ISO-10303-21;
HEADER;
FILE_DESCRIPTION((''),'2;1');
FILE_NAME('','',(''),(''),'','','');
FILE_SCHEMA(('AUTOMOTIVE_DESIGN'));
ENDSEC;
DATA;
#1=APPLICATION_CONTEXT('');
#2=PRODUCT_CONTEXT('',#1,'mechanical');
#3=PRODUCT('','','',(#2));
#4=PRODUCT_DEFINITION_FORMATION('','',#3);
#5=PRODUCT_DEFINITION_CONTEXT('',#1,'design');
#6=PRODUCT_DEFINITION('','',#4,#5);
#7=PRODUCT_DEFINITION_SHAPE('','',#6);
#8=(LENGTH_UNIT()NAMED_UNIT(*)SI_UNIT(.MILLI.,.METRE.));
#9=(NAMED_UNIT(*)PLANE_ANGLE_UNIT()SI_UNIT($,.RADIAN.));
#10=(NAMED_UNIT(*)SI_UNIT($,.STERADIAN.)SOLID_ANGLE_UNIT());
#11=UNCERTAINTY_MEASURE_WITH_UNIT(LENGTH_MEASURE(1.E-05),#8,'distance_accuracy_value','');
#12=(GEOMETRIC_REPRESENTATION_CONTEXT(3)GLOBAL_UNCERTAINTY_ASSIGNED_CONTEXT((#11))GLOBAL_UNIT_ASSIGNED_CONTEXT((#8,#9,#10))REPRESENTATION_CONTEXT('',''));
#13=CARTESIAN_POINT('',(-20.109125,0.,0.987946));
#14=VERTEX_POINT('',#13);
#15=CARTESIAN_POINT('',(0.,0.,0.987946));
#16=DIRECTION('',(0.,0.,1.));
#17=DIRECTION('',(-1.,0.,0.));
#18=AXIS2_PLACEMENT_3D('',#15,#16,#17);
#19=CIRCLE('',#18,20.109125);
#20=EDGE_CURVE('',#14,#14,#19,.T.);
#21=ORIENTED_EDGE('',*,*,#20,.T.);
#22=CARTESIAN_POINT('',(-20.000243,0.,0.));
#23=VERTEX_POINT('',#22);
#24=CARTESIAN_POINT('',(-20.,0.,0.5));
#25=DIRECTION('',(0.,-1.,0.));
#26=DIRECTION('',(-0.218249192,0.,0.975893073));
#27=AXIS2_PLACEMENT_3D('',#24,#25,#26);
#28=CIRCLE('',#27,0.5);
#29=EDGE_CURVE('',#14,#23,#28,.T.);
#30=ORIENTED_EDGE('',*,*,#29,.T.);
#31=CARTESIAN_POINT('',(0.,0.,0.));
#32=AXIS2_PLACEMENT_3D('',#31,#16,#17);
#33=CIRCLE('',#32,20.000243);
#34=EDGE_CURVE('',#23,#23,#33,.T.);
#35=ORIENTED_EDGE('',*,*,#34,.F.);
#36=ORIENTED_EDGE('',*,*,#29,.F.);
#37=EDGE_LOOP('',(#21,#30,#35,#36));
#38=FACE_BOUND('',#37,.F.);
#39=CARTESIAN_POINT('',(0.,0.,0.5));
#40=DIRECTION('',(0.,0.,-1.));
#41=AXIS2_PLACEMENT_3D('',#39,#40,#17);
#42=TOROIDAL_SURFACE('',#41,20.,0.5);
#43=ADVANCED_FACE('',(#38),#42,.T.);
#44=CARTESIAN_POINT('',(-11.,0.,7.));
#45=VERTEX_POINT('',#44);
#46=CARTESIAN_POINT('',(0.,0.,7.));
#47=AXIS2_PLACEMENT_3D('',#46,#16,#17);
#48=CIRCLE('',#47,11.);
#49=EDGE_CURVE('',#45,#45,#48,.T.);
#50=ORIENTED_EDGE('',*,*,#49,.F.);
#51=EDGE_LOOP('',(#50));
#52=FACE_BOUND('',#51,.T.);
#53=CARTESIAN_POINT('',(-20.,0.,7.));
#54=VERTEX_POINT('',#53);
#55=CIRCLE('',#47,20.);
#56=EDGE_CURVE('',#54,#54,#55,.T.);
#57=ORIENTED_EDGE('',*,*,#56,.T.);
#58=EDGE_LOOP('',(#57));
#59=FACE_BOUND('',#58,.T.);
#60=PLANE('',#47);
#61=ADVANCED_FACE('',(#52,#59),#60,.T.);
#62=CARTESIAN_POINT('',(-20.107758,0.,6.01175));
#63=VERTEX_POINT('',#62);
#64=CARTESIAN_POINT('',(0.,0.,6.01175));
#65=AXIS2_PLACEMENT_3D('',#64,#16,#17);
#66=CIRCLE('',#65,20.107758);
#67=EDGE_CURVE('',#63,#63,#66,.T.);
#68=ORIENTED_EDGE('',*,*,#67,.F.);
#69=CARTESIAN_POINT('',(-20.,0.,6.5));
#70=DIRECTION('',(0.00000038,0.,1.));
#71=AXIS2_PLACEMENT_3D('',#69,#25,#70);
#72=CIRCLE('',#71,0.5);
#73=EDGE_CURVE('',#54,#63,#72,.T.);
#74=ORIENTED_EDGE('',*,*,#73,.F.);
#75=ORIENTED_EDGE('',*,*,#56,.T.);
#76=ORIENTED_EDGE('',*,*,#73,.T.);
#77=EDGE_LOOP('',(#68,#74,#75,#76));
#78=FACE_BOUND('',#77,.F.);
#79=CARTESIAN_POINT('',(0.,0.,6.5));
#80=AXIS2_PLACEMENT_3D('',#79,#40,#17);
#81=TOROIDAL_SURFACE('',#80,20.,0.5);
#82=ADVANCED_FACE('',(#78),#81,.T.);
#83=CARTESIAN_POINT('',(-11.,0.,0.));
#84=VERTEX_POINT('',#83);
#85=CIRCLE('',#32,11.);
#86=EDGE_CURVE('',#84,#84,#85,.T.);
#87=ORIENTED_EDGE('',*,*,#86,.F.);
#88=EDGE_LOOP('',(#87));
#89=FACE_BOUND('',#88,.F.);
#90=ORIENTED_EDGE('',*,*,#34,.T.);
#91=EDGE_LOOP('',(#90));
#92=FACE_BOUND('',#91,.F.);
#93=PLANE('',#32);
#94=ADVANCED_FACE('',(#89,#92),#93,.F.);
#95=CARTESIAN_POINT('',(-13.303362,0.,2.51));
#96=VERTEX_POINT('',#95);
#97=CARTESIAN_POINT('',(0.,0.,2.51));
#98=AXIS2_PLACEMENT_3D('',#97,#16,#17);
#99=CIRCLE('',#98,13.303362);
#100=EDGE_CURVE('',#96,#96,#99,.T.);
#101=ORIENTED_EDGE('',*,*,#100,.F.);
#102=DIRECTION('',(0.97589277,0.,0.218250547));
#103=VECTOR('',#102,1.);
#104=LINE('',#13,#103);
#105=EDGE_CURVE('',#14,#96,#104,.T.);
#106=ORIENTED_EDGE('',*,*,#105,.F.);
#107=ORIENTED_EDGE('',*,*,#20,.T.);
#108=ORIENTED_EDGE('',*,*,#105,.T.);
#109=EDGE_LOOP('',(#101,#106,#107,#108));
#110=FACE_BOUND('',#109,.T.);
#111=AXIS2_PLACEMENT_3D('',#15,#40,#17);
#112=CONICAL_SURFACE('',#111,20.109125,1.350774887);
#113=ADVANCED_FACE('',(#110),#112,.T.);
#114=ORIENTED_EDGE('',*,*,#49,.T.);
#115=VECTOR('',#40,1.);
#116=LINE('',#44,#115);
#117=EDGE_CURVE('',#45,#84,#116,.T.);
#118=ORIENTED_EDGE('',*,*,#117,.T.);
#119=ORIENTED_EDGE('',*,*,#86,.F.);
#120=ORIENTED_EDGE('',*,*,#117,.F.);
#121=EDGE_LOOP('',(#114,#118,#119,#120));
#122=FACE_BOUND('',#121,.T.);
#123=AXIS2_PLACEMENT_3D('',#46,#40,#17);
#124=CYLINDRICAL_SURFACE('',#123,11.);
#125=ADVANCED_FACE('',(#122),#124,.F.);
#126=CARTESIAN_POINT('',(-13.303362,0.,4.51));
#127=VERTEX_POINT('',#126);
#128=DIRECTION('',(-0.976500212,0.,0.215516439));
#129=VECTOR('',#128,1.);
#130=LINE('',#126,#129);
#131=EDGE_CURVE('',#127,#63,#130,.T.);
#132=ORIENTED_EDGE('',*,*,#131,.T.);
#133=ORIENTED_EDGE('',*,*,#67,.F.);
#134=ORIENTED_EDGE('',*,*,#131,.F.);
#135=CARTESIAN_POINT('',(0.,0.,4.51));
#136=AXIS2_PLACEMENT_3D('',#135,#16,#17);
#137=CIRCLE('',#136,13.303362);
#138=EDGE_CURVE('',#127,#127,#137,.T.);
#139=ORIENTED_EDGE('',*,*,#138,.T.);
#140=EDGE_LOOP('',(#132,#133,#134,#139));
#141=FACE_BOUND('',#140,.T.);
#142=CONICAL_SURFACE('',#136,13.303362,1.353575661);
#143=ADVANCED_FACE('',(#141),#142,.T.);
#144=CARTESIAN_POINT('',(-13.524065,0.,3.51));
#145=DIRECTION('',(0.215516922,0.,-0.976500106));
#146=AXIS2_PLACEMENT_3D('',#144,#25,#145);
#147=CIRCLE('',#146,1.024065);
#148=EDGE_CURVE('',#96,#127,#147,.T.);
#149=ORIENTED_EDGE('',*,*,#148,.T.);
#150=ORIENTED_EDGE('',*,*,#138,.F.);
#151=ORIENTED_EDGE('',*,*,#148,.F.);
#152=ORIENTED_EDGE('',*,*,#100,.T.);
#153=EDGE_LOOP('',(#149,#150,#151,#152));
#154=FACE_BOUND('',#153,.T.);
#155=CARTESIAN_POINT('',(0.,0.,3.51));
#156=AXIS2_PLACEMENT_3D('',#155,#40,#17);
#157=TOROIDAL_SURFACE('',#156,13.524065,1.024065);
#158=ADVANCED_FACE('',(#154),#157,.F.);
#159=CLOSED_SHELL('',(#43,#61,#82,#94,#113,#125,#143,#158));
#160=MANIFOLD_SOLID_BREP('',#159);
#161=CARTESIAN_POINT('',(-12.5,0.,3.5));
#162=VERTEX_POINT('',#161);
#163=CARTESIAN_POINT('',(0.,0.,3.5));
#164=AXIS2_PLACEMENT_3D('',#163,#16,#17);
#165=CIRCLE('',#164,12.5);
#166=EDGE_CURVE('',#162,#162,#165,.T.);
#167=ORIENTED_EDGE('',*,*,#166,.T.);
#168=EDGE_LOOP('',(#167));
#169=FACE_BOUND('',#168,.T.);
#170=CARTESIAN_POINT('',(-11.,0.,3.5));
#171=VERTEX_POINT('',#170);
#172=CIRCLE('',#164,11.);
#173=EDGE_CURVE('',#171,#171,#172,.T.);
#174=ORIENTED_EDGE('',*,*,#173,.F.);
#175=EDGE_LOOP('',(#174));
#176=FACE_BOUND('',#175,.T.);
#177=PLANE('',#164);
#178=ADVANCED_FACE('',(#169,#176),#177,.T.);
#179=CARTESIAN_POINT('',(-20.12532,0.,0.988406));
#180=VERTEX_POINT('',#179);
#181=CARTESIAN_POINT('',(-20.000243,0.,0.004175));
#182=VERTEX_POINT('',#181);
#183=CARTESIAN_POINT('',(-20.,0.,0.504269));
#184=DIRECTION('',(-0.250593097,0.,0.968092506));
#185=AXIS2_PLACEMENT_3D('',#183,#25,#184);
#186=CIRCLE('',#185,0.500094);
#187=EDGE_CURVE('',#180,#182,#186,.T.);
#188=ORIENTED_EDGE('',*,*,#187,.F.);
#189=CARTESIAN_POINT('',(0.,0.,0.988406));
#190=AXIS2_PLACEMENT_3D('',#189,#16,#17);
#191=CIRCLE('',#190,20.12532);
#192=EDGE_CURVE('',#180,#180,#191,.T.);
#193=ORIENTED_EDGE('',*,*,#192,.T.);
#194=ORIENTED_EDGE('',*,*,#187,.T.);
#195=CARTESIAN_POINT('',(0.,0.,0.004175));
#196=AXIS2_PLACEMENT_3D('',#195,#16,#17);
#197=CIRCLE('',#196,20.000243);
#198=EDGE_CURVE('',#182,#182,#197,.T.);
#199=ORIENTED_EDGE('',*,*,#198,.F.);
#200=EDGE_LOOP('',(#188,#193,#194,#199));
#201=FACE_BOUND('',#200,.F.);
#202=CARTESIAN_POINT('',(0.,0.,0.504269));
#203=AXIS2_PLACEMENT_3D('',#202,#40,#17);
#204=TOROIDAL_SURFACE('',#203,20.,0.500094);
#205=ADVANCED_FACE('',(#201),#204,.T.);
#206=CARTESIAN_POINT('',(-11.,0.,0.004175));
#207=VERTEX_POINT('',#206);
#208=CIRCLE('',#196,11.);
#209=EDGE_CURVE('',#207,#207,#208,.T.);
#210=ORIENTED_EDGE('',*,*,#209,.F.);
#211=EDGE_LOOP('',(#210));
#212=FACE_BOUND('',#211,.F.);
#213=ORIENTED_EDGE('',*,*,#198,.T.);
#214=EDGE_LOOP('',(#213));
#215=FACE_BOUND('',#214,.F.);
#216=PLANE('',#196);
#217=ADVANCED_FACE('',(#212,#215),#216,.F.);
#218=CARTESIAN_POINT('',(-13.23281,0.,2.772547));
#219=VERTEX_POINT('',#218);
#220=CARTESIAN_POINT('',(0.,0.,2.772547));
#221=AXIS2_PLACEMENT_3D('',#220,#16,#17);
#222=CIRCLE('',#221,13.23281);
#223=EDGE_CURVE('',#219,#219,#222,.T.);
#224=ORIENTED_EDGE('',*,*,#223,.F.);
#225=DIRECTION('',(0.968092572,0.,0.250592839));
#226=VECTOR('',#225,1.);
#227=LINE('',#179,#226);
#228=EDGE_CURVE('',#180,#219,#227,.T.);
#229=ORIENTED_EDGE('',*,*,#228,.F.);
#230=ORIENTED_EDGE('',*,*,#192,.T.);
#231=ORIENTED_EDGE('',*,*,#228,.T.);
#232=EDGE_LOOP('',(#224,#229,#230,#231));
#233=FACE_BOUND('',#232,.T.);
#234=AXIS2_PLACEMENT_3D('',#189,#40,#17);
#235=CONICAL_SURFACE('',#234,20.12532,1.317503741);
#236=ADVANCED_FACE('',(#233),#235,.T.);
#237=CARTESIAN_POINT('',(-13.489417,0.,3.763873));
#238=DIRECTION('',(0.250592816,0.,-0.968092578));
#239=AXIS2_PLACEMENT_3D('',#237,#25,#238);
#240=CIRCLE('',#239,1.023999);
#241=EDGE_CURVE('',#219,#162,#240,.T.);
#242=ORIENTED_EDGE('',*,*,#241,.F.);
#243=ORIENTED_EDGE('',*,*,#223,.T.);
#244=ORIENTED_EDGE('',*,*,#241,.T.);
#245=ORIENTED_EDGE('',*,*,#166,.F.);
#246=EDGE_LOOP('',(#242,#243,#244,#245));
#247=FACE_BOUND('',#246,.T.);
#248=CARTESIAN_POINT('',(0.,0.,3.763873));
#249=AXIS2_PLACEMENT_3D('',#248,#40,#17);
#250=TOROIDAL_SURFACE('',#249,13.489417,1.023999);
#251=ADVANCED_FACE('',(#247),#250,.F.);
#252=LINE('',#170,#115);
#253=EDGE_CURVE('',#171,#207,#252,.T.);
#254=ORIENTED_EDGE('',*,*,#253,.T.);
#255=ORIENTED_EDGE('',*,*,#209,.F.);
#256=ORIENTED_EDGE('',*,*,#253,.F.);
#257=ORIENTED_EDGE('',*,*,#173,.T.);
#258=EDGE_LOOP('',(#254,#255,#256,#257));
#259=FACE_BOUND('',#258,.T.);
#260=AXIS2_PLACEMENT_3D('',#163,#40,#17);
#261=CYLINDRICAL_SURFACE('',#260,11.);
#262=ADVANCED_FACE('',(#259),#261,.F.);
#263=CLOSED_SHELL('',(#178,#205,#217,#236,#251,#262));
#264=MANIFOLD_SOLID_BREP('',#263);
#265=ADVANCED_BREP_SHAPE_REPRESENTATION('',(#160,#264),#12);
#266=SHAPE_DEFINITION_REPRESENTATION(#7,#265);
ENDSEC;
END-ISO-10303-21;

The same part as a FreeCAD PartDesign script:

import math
import FreeCAD as App
import Part
import Sketcher

V = App.Vector

doc = App.newDocument("Part")
body = doc.addObject("PartDesign::Body", "Body")

sketch1 = body.newObject("Sketcher::SketchObject", "Sketch")
sketch1.AttachmentSupport = (doc.getObject("XZ_Plane"), [""])
sketch1.MapMode = "FlatFace"
sketch1.addGeometry([
    Part.LineSegment(V(-11, 0, 0), V(-11, 7, 0)),
    Part.LineSegment(V(-11, 7, 0), V(-20, 7, 0)),
    Part.ArcOfCircle(Part.Circle(V(-20, 6.5, 0), V(0, 0, 1), 0.5), math.radians(89.999978), math.radians(257.554218)),
    Part.LineSegment(V(-20.107758, 6.01175, 0), V(-13.303362, 4.51, 0)),
    Part.ArcOfCircle(Part.Circle(V(-13.524065, 3.51, 0), V(0, 0, 1), 1.024065), math.radians(-77.554144), math.radians(77.554144)),
    Part.LineSegment(V(-13.303362, 2.51, 0), V(-20.109125, 0.987946, 0)),
    Part.ArcOfCircle(Part.Circle(V(-20, 0.5, 0), V(0, 0, 1), 0.5), math.radians(102.60622), math.radians(269.972207)),
    Part.LineSegment(V(-20.000243, 0, 0), V(-11, 0, 0)),
], False)
sketch1.addConstraint([
    Sketcher.Constraint("Coincident", 0, 2, 1, 1),
    Sketcher.Constraint("Coincident", 1, 2, 2, 1),
    Sketcher.Constraint("Coincident", 2, 2, 3, 1),
    Sketcher.Constraint("Coincident", 3, 2, 4, 2),
    Sketcher.Constraint("Coincident", 4, 1, 5, 1),
    Sketcher.Constraint("Coincident", 5, 2, 6, 1),
    Sketcher.Constraint("Coincident", 6, 2, 7, 1),
    Sketcher.Constraint("Coincident", 7, 2, 0, 1),
    Sketcher.Constraint("Vertical", 0),
    Sketcher.Constraint("Horizontal", 1),
    Sketcher.Constraint("Horizontal", 7),
    Sketcher.Constraint("PointOnObject", 6, 2, -1),
    Sketcher.Constraint("Radius", 2, 0.5),
    Sketcher.Constraint("Radius", 6, 0.5),
    Sketcher.Constraint("DistanceX", 1, 2, 1, 1, 9.0),
    Sketcher.Constraint("DistanceY", 0, 1, 0, 2, 7.0),
    Sketcher.Constraint("DistanceX", 2, 3, -1, 1, 20.0),
    Sketcher.Constraint("DistanceX", 6, 3, -1, 1, 20.0),
    Sketcher.Constraint("DistanceX", 0, 2, -1, 1, 11.0),
    Sketcher.Constraint("DistanceY", 4, 3, 3, 2, 1.0),
    Sketcher.Constraint("DistanceY", 4, 1, 4, 3, 1.0),
    Sketcher.Constraint("DistanceY", -1, 1, 4, 3, 3.51),
    Sketcher.Constraint("Radius", 4, 1.024065),
    Sketcher.Constraint("DistanceX", 7, 1, 7, 2, 9.000243),
    Sketcher.Constraint("DistanceX", 2, 2, -1, 1, 20.107758),
    Sketcher.Constraint("DistanceX", 3, 2, 0, 2, 2.303362),
    Sketcher.Constraint("DistanceX", 5, 2, 6, 2, 0.108882),
])
revolution = body.newObject("PartDesign::Revolution", "Revolution")
revolution.Profile = sketch1
revolution.ReferenceAxis = (sketch1, ["V_Axis"])
revolution.Angle = 360
body2 = doc.addObject("PartDesign::Body", "Body001")

sketch2 = body2.newObject("Sketcher::SketchObject", "Sketch001")
sketch2.AttachmentSupport = (doc.getObject("XZ_Plane001"), [""])
sketch2.MapMode = "FlatFace"
sketch2.addGeometry([
    Part.LineSegment(V(-11, 0, 0), V(-11, 3.5, 0)),
    Part.LineSegment(V(-11, 3.5, 0), V(-12.5, 3.5, 0)),
    Part.ArcOfCircle(Part.Circle(V(-13.5, 3.8, 0), V(0, 0, 1), 1), math.radians(-75), math.radians(-15)),
    Part.LineSegment(V(-13.2, 2.8, 0), V(-20.1, 1, 0)),
    Part.ArcOfCircle(Part.Circle(V(-20, 0.5, 0), V(0, 0, 1), 0.5), math.radians(105), math.radians(270)),
    Part.LineSegment(V(-20, 0, 0), V(-11, 0, 0)),
], False)
sketch2.addConstraint([
    Sketcher.Constraint("Coincident", 0, 2, 1, 1),
    Sketcher.Constraint("Coincident", 1, 2, 2, 2),
    Sketcher.Constraint("Tangent", 2, 1, 3, 1),
    Sketcher.Constraint("Tangent", 3, 2, 4, 1),
    Sketcher.Constraint("Coincident", 4, 2, 5, 1),
    Sketcher.Constraint("Coincident", 5, 2, 0, 1),
    Sketcher.Constraint("Vertical", 0),
    Sketcher.Constraint("Horizontal", 1),
    Sketcher.Constraint("Horizontal", 5),
    Sketcher.Constraint("DistanceX", 1, 2, 1, 1, 1.5),
    Sketcher.Constraint("DistanceX", 4, 3, -1, 1, 20.0),
    Sketcher.Constraint("DistanceX", 0, 2, -1, 1, 11.0),
    Sketcher.Constraint("Radius", 2, 1.023999),
    Sketcher.Constraint("DistanceY", -1, 1, 0, 2, 3.5),
    Sketcher.Constraint("Radius", 4, 0.500094),
    Sketcher.Constraint("DistanceY", 4, 2, 2, 3, 3.759698),
    Sketcher.Constraint("Distance", 3, 7.119681),
    Sketcher.Constraint("DistanceX", 5, 1, 5, 2, 9.000243),
])
revolution2 = body2.newObject("PartDesign::Revolution", "Revolution001")
revolution2.Profile = sketch2
revolution2.ReferenceAxis = (sketch2, ["V_Axis"])
revolution2.Angle = 360

doc.recompute()
